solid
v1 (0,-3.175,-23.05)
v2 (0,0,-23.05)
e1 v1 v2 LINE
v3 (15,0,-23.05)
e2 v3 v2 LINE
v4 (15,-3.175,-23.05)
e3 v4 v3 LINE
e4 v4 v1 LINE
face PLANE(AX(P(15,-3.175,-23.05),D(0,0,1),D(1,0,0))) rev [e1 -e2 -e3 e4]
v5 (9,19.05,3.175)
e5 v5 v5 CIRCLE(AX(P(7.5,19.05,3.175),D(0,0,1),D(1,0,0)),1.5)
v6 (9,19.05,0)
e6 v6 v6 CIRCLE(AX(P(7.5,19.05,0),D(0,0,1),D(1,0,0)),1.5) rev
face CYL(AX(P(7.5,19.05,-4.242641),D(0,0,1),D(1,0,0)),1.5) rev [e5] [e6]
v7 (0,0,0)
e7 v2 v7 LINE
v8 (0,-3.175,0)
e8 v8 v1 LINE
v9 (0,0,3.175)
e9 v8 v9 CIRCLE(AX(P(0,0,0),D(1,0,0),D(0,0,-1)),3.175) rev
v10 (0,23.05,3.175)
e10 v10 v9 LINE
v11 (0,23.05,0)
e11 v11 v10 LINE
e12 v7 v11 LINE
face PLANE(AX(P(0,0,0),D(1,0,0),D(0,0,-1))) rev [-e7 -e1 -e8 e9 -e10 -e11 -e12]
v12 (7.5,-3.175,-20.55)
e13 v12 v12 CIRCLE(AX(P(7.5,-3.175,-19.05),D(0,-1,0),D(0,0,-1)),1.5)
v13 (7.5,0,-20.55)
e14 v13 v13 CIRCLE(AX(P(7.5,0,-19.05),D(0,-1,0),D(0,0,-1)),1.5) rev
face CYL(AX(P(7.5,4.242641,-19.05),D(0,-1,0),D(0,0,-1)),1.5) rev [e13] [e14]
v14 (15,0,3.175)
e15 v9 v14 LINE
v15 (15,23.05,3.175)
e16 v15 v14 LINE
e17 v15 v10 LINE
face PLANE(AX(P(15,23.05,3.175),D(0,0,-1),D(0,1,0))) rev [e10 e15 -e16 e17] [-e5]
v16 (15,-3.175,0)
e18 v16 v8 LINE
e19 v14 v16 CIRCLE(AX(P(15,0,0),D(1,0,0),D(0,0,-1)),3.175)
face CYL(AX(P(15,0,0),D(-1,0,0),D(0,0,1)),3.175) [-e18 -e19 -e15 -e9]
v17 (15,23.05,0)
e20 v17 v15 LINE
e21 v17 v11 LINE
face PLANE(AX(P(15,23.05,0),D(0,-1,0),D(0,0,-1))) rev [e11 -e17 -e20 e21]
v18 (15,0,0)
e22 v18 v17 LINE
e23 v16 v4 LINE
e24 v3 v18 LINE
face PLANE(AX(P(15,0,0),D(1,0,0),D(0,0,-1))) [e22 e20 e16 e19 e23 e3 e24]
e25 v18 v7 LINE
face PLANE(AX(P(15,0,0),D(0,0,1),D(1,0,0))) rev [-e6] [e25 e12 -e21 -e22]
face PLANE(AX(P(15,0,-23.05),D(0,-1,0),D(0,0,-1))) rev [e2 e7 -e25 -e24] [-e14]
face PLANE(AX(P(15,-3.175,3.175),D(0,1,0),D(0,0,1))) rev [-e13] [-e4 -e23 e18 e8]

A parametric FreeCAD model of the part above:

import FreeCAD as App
import Part
import Sketcher


def edges_at(feature, points):
    """Names of the edges that pass closest to the given points."""
    edges = feature.Shape.Edges
    near = lambda p: min(range(len(edges)), key=lambda i: edges[i].distToShape(Part.Vertex(*p))[0])
    return sorted({f"Edge{near(p) + 1}" for p in points})

doc = App.newDocument("Part")
params = doc.addObject("Spreadsheet::Sheet", "Params")
for row, (alias, value) in enumerate([
    ("sketch1_width", "23.05 mm"),
    ("pad1_length", "15 mm"),
    ("fillet_radius", "3.175 mm"),
    ("sketch2_diameter", "3 mm"),
    ("pocket1_length", "3.175 mm"),
    ("sketch3_diameter", "3 mm"),
    ("pocket2_length", "3.175 mm"),
], start=1):
    params.set(f"A{row}", alias)
    params.set(f"B{row}", "=" + value)
    params.setAlias(f"B{row}", alias)

body = doc.addObject("PartDesign::Body", "Body")

# Sketch on YZ plane
sketch1 = body.newObject("Sketcher::SketchObject", "Sketch")
sketch1.AttachmentSupport = (doc.getObject("YZ_Plane"), [""])
sketch1.MapMode = "FlatFace"
sketch1.addGeometry(Part.LineSegment(App.Vector(23.1, 3.2, 0), App.Vector(-3.2, 3.2, 0)), False)
sketch1.addGeometry(Part.LineSegment(App.Vector(-3.2, 3.2, 0), App.Vector(-3.2, -23.1, 0)), False)
sketch1.addGeometry(Part.LineSegment(App.Vector(-3.2, -23.1, 0), App.Vector(0, -23.1, 0)), False)
sketch1.addGeometry(Part.LineSegment(App.Vector(0, -23.1, 0), App.Vector(0, 0, 0)), False)
sketch1.addGeometry(Part.LineSegment(App.Vector(0, 0, 0), App.Vector(23.1, 0, 0)), False)
sketch1.addGeometry(Part.LineSegment(App.Vector(23.1, 0, 0), App.Vector(23.1, 3.2, 0)), False)
sketch1.addConstraint(Sketcher.Constraint("Coincident", 0, 2, 1, 1))
sketch1.addConstraint(Sketcher.Constraint("Coincident", 1, 2, 2, 1))
sketch1.addConstraint(Sketcher.Constraint("Coincident", 2, 2, 3, 1))
sketch1.addConstraint(Sketcher.Constraint("Coincident", 3, 2, 4, 1))
sketch1.addConstraint(Sketcher.Constraint("Coincident", 4, 2, 5, 1))
sketch1.addConstraint(Sketcher.Constraint("Coincident", 5, 2, 0, 1))
sketch1.addConstraint(Sketcher.Constraint("Horizontal", 0))
sketch1.addConstraint(Sketcher.Constraint("Vertical", 1))
sketch1.addConstraint(Sketcher.Constraint("Horizontal", 2))
sketch1.addConstraint(Sketcher.Constraint("Vertical", 3))
sketch1.addConstraint(Sketcher.Constraint("Horizontal", 4))
sketch1.addConstraint(Sketcher.Constraint("Vertical", 5))
sketch1.addConstraint(Sketcher.Constraint("Coincident", 3, 2, -1, 1))
sketch1.addConstraint(Sketcher.Constraint("Equal", 0, 1))
sketch1.addConstraint(Sketcher.Constraint("Equal", 4, 3))
sketch1.addConstraint(Sketcher.Constraint("DistanceX", 4, 1, 4, 2, 23.05))
sketch1.addConstraint(Sketcher.Constraint("DistanceX", 0, 2, 0, 1, 26.225))
sketch1.setExpression("Constraints[15]", "Params.sketch1_width")
pad1 = body.newObject("PartDesign::Pad", "Pad")
pad1.Profile = sketch1
pad1.setExpression("Length", "Params.pad1_length")
doc.recompute()

fillet = body.newObject("PartDesign::Fillet", "Fillet")
fillet.Base = (pad1, edges_at(pad1, [(7.5, -3.175, 3.175)]))
fillet.setExpression("Radius", "Params.fillet_radius")

# Sketch on XY plane
sketch2 = body.newObject("Sketcher::SketchObject", "Sketch001")
sketch2.AttachmentSupport = (doc.getObject("XY_Plane"), [""])
sketch2.MapMode = "FlatFace"
sketch2.AttachmentOffset = App.Placement(App.Vector(0, 0, 3.175), App.Rotation())
sketch2.addGeometry(Part.Circle(App.Vector(7.5, 19.1, 0), App.Vector(0, 0, 1), 1.5), False)
sketch2.addConstraint(Sketcher.Constraint("Diameter", 0, 3.0))
sketch2.addConstraint(Sketcher.Constraint("DistanceX", -1, 1, 0, 3, 7.5))
sketch2.addConstraint(Sketcher.Constraint("DistanceY", -1, 1, 0, 3, 19.05))
sketch2.setExpression("Constraints[0]", "Params.sketch2_diameter")
pocket1 = body.newObject("PartDesign::Pocket", "Pocket")
pocket1.Profile = sketch2
pocket1.setExpression("Length", "Params.pocket1_length")

# Sketch on XZ plane
sketch3 = body.newObject("Sketcher::SketchObject", "Sketch002")
sketch3.AttachmentSupport = (doc.getObject("XZ_Plane"), [""])
sketch3.MapMode = "FlatFace"
sketch3.AttachmentOffset = App.Placement(App.Vector(0, 0, 3.175), App.Rotation())
sketch3.addGeometry(Part.Circle(App.Vector(7.5, -19.1, 0), App.Vector(0, 0, 1), 1.5), False)
sketch3.addConstraint(Sketcher.Constraint("Diameter", 0, 3.0))
sketch3.addConstraint(Sketcher.Constraint("DistanceX", -1, 1, 0, 3, 7.5))
sketch3.addConstraint(Sketcher.Constraint("DistanceY", 0, 3, -1, 1, 19.05))
sketch3.setExpression("Constraints[0]", "Params.sketch3_diameter")
pocket2 = body.newObject("PartDesign::Pocket", "Pocket001")
pocket2.Profile = sketch3
pocket2.setExpression("Length", "Params.pocket2_length")

doc.recompute()
